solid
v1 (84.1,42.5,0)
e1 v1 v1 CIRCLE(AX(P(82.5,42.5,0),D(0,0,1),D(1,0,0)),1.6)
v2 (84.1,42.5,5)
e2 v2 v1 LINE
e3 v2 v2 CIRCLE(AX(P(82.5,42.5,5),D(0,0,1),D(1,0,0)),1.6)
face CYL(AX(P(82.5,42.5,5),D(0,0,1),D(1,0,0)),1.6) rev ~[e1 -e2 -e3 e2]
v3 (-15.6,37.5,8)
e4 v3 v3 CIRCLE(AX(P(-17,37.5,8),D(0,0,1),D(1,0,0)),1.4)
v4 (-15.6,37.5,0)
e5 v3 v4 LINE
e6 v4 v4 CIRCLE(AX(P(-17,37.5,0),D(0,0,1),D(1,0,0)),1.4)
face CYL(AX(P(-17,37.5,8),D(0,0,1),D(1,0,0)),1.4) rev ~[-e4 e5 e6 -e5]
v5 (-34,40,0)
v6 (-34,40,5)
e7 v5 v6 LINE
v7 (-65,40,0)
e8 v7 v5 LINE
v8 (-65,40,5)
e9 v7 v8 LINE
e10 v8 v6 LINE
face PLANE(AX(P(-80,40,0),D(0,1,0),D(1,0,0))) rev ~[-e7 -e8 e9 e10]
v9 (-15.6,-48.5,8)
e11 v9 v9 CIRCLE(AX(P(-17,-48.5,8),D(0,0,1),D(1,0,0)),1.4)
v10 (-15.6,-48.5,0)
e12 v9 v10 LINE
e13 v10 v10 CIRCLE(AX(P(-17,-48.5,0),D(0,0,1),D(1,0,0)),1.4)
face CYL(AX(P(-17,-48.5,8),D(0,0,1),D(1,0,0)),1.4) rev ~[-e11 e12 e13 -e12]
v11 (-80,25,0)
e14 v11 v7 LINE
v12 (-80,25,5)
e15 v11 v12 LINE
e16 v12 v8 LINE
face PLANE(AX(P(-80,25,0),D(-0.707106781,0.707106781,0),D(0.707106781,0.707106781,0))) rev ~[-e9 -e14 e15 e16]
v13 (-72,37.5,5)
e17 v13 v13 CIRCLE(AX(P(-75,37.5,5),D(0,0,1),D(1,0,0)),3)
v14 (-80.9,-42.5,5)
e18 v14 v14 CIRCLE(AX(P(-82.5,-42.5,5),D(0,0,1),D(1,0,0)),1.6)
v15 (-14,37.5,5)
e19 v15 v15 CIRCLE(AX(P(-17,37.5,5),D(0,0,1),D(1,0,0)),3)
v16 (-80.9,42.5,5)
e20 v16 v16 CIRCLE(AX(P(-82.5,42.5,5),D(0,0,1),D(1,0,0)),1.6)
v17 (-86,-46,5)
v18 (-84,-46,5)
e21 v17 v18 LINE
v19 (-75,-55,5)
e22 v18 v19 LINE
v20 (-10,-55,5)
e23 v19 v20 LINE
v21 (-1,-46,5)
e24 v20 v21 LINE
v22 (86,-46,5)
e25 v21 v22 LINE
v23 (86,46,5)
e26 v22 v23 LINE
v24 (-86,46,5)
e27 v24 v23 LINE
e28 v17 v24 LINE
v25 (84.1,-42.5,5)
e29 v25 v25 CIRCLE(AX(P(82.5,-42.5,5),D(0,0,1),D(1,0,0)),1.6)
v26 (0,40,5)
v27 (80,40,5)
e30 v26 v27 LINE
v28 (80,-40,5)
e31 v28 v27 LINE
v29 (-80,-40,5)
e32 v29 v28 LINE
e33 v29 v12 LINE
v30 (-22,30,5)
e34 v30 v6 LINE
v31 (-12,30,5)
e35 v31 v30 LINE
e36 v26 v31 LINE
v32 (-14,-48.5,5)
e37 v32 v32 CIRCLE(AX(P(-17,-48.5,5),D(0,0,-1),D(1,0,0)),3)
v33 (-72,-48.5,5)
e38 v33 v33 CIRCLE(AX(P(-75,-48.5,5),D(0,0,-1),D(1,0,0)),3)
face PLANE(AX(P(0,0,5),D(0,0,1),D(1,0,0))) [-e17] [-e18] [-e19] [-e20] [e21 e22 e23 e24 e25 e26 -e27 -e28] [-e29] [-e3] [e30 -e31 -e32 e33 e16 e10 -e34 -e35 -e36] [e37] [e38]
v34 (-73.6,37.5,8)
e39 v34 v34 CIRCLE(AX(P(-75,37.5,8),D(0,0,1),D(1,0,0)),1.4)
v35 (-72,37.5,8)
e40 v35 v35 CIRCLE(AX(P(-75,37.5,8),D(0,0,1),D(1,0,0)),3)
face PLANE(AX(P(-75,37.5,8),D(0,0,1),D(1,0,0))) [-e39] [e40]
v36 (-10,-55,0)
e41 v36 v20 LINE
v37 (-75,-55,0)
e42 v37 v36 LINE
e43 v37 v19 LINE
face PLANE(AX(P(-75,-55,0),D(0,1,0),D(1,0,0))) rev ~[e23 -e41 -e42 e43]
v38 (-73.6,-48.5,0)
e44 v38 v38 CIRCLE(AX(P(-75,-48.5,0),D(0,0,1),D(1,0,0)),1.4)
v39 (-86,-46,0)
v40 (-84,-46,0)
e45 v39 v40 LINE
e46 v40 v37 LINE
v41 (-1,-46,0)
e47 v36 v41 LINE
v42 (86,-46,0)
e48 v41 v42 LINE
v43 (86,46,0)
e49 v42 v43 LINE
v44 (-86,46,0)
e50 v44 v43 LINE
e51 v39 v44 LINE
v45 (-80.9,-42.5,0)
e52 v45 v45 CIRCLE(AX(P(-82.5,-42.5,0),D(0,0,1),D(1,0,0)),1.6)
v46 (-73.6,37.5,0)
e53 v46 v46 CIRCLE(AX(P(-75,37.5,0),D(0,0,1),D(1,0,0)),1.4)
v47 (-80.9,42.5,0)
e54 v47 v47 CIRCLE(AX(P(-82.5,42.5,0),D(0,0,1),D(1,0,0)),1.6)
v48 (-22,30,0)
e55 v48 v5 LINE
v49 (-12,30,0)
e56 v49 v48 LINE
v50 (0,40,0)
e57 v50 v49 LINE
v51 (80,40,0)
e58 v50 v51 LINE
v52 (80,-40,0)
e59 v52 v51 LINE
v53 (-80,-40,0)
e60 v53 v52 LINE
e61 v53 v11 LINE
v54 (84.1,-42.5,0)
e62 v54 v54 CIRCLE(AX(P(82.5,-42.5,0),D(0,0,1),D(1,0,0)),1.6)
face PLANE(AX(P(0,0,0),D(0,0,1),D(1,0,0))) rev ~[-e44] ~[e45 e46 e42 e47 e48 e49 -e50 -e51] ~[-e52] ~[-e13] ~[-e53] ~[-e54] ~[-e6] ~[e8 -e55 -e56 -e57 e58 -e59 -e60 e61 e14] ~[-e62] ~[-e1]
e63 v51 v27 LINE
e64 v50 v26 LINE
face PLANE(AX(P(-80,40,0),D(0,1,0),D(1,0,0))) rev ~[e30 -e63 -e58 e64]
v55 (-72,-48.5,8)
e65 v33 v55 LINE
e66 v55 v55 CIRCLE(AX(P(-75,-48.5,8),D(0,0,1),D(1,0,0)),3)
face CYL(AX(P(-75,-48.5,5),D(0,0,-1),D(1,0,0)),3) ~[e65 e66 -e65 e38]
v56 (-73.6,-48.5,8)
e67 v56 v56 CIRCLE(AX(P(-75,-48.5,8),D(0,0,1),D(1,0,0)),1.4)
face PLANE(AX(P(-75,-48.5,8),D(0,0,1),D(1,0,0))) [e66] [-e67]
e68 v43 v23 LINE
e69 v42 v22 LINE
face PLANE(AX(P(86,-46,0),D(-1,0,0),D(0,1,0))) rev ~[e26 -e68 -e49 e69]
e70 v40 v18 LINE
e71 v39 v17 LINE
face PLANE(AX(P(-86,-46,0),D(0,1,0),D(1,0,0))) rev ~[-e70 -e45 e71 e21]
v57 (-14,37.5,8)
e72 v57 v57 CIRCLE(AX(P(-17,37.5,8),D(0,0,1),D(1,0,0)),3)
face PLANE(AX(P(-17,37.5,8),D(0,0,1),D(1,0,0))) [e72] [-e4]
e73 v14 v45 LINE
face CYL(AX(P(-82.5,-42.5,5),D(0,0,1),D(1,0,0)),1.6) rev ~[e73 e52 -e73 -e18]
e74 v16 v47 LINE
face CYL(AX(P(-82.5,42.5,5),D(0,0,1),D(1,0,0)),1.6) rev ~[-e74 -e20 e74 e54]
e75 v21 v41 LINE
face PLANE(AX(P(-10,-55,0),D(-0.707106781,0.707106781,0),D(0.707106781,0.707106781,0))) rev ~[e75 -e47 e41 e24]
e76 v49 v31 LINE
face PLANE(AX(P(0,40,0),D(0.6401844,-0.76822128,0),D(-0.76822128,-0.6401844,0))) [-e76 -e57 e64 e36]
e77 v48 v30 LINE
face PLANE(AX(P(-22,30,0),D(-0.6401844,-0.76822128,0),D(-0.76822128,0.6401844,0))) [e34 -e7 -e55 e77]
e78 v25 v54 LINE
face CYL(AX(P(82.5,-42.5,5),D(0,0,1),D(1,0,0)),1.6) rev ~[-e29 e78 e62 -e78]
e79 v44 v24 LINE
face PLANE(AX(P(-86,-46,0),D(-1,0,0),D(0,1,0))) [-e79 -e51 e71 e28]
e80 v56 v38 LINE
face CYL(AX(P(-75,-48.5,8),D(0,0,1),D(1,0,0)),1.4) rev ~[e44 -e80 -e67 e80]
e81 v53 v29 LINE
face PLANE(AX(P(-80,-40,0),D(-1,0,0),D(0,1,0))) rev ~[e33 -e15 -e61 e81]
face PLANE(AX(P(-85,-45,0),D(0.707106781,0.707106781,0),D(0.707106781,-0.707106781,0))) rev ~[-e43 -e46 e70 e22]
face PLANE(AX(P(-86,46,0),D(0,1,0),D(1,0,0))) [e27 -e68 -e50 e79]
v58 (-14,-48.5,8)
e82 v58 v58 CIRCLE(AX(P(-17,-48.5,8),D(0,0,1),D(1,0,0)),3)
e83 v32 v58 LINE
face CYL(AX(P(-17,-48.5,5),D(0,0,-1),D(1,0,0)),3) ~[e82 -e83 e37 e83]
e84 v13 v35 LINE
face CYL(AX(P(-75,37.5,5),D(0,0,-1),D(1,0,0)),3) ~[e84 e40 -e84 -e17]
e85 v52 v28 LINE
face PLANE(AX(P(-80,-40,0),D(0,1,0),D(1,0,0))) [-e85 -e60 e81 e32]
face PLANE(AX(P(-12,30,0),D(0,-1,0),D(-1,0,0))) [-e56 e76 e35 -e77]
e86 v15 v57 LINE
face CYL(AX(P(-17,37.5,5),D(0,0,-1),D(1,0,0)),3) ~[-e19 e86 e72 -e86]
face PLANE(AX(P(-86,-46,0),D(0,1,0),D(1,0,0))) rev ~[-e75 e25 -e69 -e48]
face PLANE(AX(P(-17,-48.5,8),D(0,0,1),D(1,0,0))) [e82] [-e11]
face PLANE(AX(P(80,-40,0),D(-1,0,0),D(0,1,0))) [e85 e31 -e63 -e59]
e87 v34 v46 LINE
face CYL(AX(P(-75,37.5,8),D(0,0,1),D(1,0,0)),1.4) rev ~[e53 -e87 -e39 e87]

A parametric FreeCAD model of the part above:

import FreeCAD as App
import Part
import Sketcher

V = App.Vector


def add_polygon(sketch, points):
    """Adds a closed chain of lines whose ends are joined by coincident constraints."""
    first, n = sketch.GeometryCount, len(points)
    for a, b in zip(points, points[1:] + points[:1]):
        sketch.addGeometry(Part.LineSegment(App.Vector(*a, 0), App.Vector(*b, 0)), False)
    for i in range(n):
        sketch.addConstraint(Sketcher.Constraint("Coincident", first + i, 2, first + (i + 1) % n, 1))

doc = App.newDocument("Part")
body = doc.addObject("PartDesign::Body", "Body")

sketch1 = body.newObject("Sketcher::SketchObject", "Sketch")
sketch1.AttachmentSupport = (doc.getObject("XY_Plane"), [""])
sketch1.MapMode = "FlatFace"
add_polygon(sketch1, [(-85, 45), (-85, -45), (85, -45), (85, 45)])
add_polygon(sketch1, [(80, -40), (-80, -40), (-80, 40), (80, 40)])
sketch1.addConstraint([
    Sketcher.Constraint("Vertical", 0),
    Sketcher.Constraint("Horizontal", 1),
    Sketcher.Constraint("Vertical", 2),
    Sketcher.Constraint("Horizontal", 3),
    Sketcher.Constraint("Horizontal", 4),
    Sketcher.Constraint("Vertical", 5),
    Sketcher.Constraint("Horizontal", 6),
    Sketcher.Constraint("Vertical", 7),
    Sketcher.Constraint("Symmetric", 0, 2, 2, 2, -1, 1),
    Sketcher.Constraint("Symmetric", 4, 2, 6, 2, -1, 1),
    Sketcher.Constraint("DistanceX", 1, 1, 1, 2, 170.0),
    Sketcher.Constraint("DistanceX", 4, 2, 4, 1, 160.0),
    Sketcher.Constraint("DistanceY", 0, 2, 0, 1, 90.0),
    Sketcher.Constraint("DistanceY", 5, 1, 5, 2, 80.0),
])
pad1 = body.newObject("PartDesign::Pad", "Pad")
pad1.Profile = sketch1
pad1.Length = 5

sketch2 = body.newObject("Sketcher::SketchObject", "Sketch001")
sketch2.AttachmentSupport = (doc.getObject("XY_Plane"), [""])
sketch2.MapMode = "FlatFace"
add_polygon(sketch2, [(-80, 40), (-80, 25), (-65, 40)])
sketch2.addConstraint([
    Sketcher.Constraint("Vertical", 0),
    Sketcher.Constraint("Horizontal", 2),
    Sketcher.Constraint("Equal", 2, 0),
    Sketcher.Constraint("DistanceX", 2, 2, 2, 1, 15.0),
    Sketcher.Constraint("DistanceX", 0, 2, -1, 1, 80.0),
    Sketcher.Constraint("DistanceY", -1, 1, 0, 2, 25.0),
])
pad2 = body.newObject("PartDesign::Pad", "Pad001")
pad2.Profile = sketch2
pad2.Length = 5

sketch3 = body.newObject("Sketcher::SketchObject", "Sketch002")
sketch3.AttachmentSupport = (doc.getObject("XY_Plane"), [""])
sketch3.MapMode = "FlatFace"
add_polygon(sketch3, [(-85, -45), (-75, -55), (-10, -55), (0, -45)])
sketch3.addConstraint([
    Sketcher.Constraint("Horizontal", 1),
    Sketcher.Constraint("Horizontal", 3),
    Sketcher.Constraint("PointOnObject", 2, 2, -2),
    Sketcher.Constraint("Perpendicular", 0, 2),
    Sketcher.Constraint("Equal", 0, 2),
    Sketcher.Constraint("DistanceX", 1, 1, 1, 2, 65.0),
    Sketcher.Constraint("DistanceX", 3, 2, 3, 1, 85.0),
    Sketcher.Constraint("DistanceY", 0, 2, -1, 1, 55.0),
])
pad3 = body.newObject("PartDesign::Pad", "Pad002")
pad3.Profile = sketch3
pad3.Length = 5

sketch4 = body.newObject("Sketcher::SketchObject", "Sketch003")
sketch4.AttachmentSupport = (doc.getObject("XY_Plane"), [""])
sketch4.MapMode = "FlatFace"
add_polygon(sketch4, [(-12, 30), (0, 40), (-34, 40), (-22, 30)])
sketch4.addConstraint([
    Sketcher.Constraint("Horizontal", 1),
    Sketcher.Constraint("Horizontal", 3),
    Sketcher.Constraint("PointOnObject", 0, 2, -2),
    Sketcher.Constraint("Equal", 0, 2),
    Sketcher.Constraint("DistanceX", 1, 2, 1, 1, 34.0),
    Sketcher.Constraint("DistanceX", 3, 1, 3, 2, 10.0),
    Sketcher.Constraint("DistanceY", -1, 1, 0, 2, 40.0),
    Sketcher.Constraint("DistanceY", -1, 1, 2, 2, 30.0),
])
pad4 = body.newObject("PartDesign::Pad", "Pad003")
pad4.Profile = sketch4
pad4.Length = 5

sketch5 = body.newObject("Sketcher::SketchObject", "Sketch004")
sketch5.AttachmentSupport = (doc.getObject("XY_Plane"), [""])
sketch5.MapMode = "FlatFace"
sketch5.AttachmentOffset = App.Placement(V(0, 0, 5), App.Rotation())
sketch5.addGeometry([
    Part.Circle(V(-82.5, 42.5, 0), V(0, 0, 1), 1.6),
    Part.Circle(V(-82.5, -42.5, 0), V(0, 0, 1), 1.6),
    Part.Circle(V(82.5, -42.5, 0), V(0, 0, 1), 1.6),
    Part.Circle(V(82.5, 42.5, 0), V(0, 0, 1), 1.6),
], False)
sketch5.addConstraint([
    Sketcher.Constraint("Equal", 0, 1),
    Sketcher.Constraint("Equal", 1, 2),
    Sketcher.Constraint("Equal", 2, 3),
    Sketcher.Constraint("Symmetric", 0, 3, 2, 3, -1, 1),
    Sketcher.Constraint("Symmetric", 1, 3, 3, 3, -1, 1),
    Sketcher.Constraint("Symmetric", 1, 3, 2, 3, -2),
    Sketcher.Constraint("Diameter", 0, 3.2),
    Sketcher.Constraint("DistanceY", 1, 3, 0, 3, 85.0),
    Sketcher.Constraint("DistanceX", 1, 3, 2, 3, 165.0),
])
pocket1 = body.newObject("PartDesign::Pocket", "Pocket")
pocket1.Profile = sketch5
pocket1.Length = 5

sketch6 = body.newObject("Sketcher::SketchObject", "Sketch005")
sketch6.AttachmentSupport = (doc.getObject("XY_Plane"), [""])
sketch6.MapMode = "FlatFace"
sketch6.AttachmentOffset = App.Placement(V(0, 0, 5), App.Rotation())
sketch6.addGeometry([
    Part.Circle(V(-75, 37.5, 0), V(0, 0, 1), 3),
    Part.Circle(V(-17, 37.5, 0), V(0, 0, 1), 3),
    Part.Circle(V(-75, -48.5, 0), V(0, 0, 1), 3),
    Part.Circle(V(-17, -48.5, 0), V(0, 0, 1), 3),
], False)
sketch6.addConstraint([
    Sketcher.Constraint("Equal", 0, 1),
    Sketcher.Constraint("Equal", 1, 2),
    Sketcher.Constraint("Equal", 2, 3),
    Sketcher.Constraint("Horizontal", 0, 3, 1, 3),
    Sketcher.Constraint("Horizontal", 2, 3, 3, 3),
    Sketcher.Constraint("Vertical", 0, 3, 2, 3),
    Sketcher.Constraint("Vertical", 1, 3, 3, 3),
    Sketcher.Constraint("Diameter", 0, 6.0),
    Sketcher.Constraint("DistanceX", 0, 3, -1, 1, 75.0),
    Sketcher.Constraint("DistanceX", 1, 3, -1, 1, 17.0),
    Sketcher.Constraint("DistanceY", 2, 3, 0, 3, 86.0),
    Sketcher.Constraint("DistanceY", -1, 1, 0, 3, 37.5),
])
pad5 = body.newObject("PartDesign::Pad", "Pad004")
pad5.Profile = sketch6
pad5.Length = 3

sketch7 = body.newObject("Sketcher::SketchObject", "Sketch006")
sketch7.AttachmentSupport = (doc.getObject("XY_Plane"), [""])
sketch7.MapMode = "FlatFace"
sketch7.AttachmentOffset = App.Placement(V(0, 0, 8), App.Rotation())
sketch7.addGeometry([
    Part.Circle(V(-75, 37.5, 0), V(0, 0, 1), 1.4),
    Part.Circle(V(-17, 37.5, 0), V(0, 0, 1), 1.4),
    Part.Circle(V(-75, -48.5, 0), V(0, 0, 1), 1.4),
    Part.Circle(V(-17, -48.5, 0), V(0, 0, 1), 1.4),
], False)
sketch7.addConstraint([
    Sketcher.Constraint("Equal", 0, 1),
    Sketcher.Constraint("Equal", 1, 2),
    Sketcher.Constraint("Equal", 2, 3),
    Sketcher.Constraint("Horizontal", 0, 3, 1, 3),
    Sketcher.Constraint("Horizontal", 2, 3, 3, 3),
    Sketcher.Constraint("Vertical", 0, 3, 2, 3),
    Sketcher.Constraint("Vertical", 1, 3, 3, 3),
    Sketcher.Constraint("Diameter", 0, 2.8),
    Sketcher.Constraint("DistanceX", 0, 3, -1, 1, 75.0),
    Sketcher.Constraint("DistanceX", 1, 3, -1, 1, 17.0),
    Sketcher.Constraint("DistanceY", 2, 3, 0, 3, 86.0),
    Sketcher.Constraint("DistanceY", -1, 1, 0, 3, 37.5),
])
pocket2 = body.newObject("PartDesign::Pocket", "Pocket001")
pocket2.Profile = sketch7
pocket2.Length = 10

sketch8 = body.newObject("Sketcher::SketchObject", "Sketch007")
sketch8.AttachmentSupport = (doc.getObject("XY_Plane"), [""])
sketch8.MapMode = "FlatFace"
add_polygon(sketch8, [(-86, 46), (-86, -46), (86, -46), (86, 46)])
add_polygon(sketch8, [(85, -45), (-85, -45), (-85, 45), (85, 45)])
sketch8.addConstraint([
    Sketcher.Constraint("Vertical", 0),
    Sketcher.Constraint("Horizontal", 1),
    Sketcher.Constraint("Vertical", 2),
    Sketcher.Constraint("Horizontal", 3),
    Sketcher.Constraint("Horizontal", 4),
    Sketcher.Constraint("Vertical", 5),
    Sketcher.Constraint("Horizontal", 6),
    Sketcher.Constraint("Vertical", 7),
    Sketcher.Constraint("Symmetric", 0, 2, 2, 2, -1, 1),
    Sketcher.Constraint("Symmetric", 4, 2, 6, 2, -1, 1),
    Sketcher.Constraint("DistanceX", 1, 1, 1, 2, 172.0),
    Sketcher.Constraint("DistanceX", 4, 2, 4, 1, 170.0),
    Sketcher.Constraint("DistanceY", 0, 2, 0, 1, 92.0),
    Sketcher.Constraint("DistanceY", 5, 1, 5, 2, 90.0),
])
pad6 = body.newObject("PartDesign::Pad", "Pad005")
pad6.Profile = sketch8
pad6.Length = 5

doc.recompute()
